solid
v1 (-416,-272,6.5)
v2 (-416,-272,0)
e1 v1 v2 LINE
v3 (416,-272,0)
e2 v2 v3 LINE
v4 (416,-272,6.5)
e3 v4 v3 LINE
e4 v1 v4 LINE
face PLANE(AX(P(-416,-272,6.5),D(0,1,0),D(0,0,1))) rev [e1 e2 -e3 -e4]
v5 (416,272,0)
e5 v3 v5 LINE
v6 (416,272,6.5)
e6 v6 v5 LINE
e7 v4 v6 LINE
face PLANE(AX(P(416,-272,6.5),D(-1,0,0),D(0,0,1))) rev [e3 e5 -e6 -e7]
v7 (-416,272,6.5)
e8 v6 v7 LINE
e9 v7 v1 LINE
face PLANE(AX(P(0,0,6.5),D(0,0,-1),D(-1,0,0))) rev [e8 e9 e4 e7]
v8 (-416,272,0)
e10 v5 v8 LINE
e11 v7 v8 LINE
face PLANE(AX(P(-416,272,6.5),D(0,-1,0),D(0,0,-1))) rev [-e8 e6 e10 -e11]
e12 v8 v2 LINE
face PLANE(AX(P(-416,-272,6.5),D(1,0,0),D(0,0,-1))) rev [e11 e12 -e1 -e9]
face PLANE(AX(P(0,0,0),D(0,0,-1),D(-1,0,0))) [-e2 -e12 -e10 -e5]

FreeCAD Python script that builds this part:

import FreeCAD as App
import Part
import Sketcher
from FreeCAD import Vector
Q = App.Units.Quantity


def add_polygon(sketch, points):
    """Adds a closed chain of lines whose ends are joined by coincident constraints."""
    first, n = sketch.GeometryCount, len(points)
    for a, b in zip(points, points[1:] + points[:1]):
        sketch.addGeometry(Part.LineSegment(App.Vector(*a, 0), App.Vector(*b, 0)), False)
    for i in range(n):
        sketch.addConstraint(Sketcher.Constraint("Coincident", first + i, 2, first + (i + 1) % n, 1))

doc = App.newDocument("Part")
params = doc.addObject("Spreadsheet::Sheet", "Params")
for row, (alias, value) in enumerate([
    ("sketch1_width", "832 mm"),
    ("sketch1_height", "544 mm"),
    ("pad1_length", "6.5 mm"),
], start=1):
    params.set(f"A{row}", alias)
    params.set(f"B{row}", "=" + value)
    params.setAlias(f"B{row}", alias)

body = doc.addObject("PartDesign::Body", "Body")

# Sketch on XY plane
sketch1 = doc.addObject("Sketcher::SketchObject", "Sketch")
body.addObject(sketch1)
sketch1.AttachmentSupport = (doc.XY_Plane, [""])
sketch1.MapMode = "FlatFace"
add_polygon(sketch1, [(-416, 272), (-416, -272), (416, -272), (416, 272)])  # lines 0-3
sketch1.addConstraint(Sketcher.Constraint("Vertical", 0))
sketch1.addConstraint(Sketcher.Constraint("Horizontal", 1))
sketch1.addConstraint(Sketcher.Constraint("Vertical", 2))
sketch1.addConstraint(Sketcher.Constraint("Horizontal", 3))
sketch1.addConstraint(Sketcher.Constraint("Symmetric", 0, 2, 2, 2, -1, 1))
sketch1.addConstraint(Sketcher.Constraint("DistanceX", 1, 1, 1, 2, Q("832 mm")))
sketch1.addConstraint(Sketcher.Constraint("DistanceY", 0, 2, 0, 1, Q("544 mm")))
sketch1.setExpression("Constraints[9]", "Params.sketch1_width")
sketch1.setExpression("Constraints[10]", "Params.sketch1_height")
pad1 = doc.addObject("PartDesign::Pad", "Pad")
body.addObject(pad1)
pad1.Profile = sketch1
pad1.setExpression("Length", "Params.pad1_length")

doc.recompute()
